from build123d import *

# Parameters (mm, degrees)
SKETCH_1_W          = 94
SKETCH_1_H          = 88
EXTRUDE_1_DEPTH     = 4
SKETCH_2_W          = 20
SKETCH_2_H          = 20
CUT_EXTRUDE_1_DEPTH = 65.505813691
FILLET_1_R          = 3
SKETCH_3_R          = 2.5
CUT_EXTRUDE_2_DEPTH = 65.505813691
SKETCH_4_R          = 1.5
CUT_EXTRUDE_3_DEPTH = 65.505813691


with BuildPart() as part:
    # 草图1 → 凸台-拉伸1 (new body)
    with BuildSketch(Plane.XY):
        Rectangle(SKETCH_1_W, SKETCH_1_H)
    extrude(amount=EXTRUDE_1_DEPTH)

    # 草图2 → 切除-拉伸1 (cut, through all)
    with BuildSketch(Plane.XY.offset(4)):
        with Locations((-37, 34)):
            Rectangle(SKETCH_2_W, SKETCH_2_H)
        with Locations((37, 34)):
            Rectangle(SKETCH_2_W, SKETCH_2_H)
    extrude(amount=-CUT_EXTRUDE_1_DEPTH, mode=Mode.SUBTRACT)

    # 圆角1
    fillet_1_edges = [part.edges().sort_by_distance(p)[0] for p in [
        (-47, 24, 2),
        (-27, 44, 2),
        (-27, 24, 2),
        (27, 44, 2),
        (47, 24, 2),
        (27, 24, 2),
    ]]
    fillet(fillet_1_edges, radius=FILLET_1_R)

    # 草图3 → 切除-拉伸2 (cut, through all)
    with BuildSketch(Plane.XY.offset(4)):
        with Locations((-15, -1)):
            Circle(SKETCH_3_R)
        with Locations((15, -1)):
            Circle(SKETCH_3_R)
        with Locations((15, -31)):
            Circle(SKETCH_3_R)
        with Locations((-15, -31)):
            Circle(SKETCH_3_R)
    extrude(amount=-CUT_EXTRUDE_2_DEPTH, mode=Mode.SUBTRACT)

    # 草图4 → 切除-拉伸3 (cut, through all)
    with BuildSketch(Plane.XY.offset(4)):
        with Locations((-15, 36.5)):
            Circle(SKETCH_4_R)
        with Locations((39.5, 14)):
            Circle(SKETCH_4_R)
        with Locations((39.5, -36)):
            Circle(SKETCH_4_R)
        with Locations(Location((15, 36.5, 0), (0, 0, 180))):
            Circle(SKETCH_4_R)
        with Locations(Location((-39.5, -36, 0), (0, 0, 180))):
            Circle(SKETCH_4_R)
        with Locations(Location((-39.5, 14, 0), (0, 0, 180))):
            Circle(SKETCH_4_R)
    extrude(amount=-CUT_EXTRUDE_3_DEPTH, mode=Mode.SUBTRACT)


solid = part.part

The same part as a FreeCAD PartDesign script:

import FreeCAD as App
import Part
import Sketcher
from FreeCAD import Vector


def edges_at(feature, points):
    """Names of the edges that pass closest to the given points."""
    edges = feature.Shape.Edges
    near = lambda p: min(range(len(edges)), key=lambda i: edges[i].distToShape(Part.Vertex(*p))[0])
    return sorted({f"Edge{near(p) + 1}" for p in points})


def add_polygon(sketch, points):
    """Adds a closed chain of lines whose ends are joined by coincident constraints."""
    first, n = sketch.GeometryCount, len(points)
    for a, b in zip(points, points[1:] + points[:1]):
        sketch.addGeometry(Part.LineSegment(App.Vector(*a, 0), App.Vector(*b, 0)), False)
    for i in range(n):
        sketch.addConstraint(Sketcher.Constraint("Coincident", first + i, 2, first + (i + 1) % n, 1))

doc = App.newDocument("Part")
body = doc.addObject("PartDesign::Body", "Body")

# Sketch on XY plane
sketch1 = body.newObject("Sketcher::SketchObject", "Sketch")
sketch1.AttachmentSupport = (doc.getObject("XY_Plane"), [""])
sketch1.MapMode = "FlatFace"
add_polygon(sketch1, [(-47, 44), (-47, -44), (47, -44), (47, 44)])  # lines 0-3
sketch1.addConstraint([
    Sketcher.Constraint("Vertical", 0),
    Sketcher.Constraint("Horizontal", 1),
    Sketcher.Constraint("Vertical", 2),
    Sketcher.Constraint("Horizontal", 3),
    Sketcher.Constraint("Symmetric", 0, 2, 2, 2, -1, 1),
    Sketcher.Constraint("DistanceX", 1, 1, 1, 2, 94.0),
    Sketcher.Constraint("DistanceY", 0, 2, 0, 1, 88.0),
])
pad1 = body.newObject("PartDesign::Pad", "Pad")
pad1.Profile = sketch1
pad1.Length = 4

# Sketch on XY plane
sketch2 = body.newObject("Sketcher::SketchObject", "Sketch001")
sketch2.AttachmentSupport = (doc.getObject("XY_Plane"), [""])
sketch2.MapMode = "FlatFace"
sketch2.AttachmentOffset = App.Placement(Vector(0, 0, 4), App.Rotation())
add_polygon(sketch2, [(-47, 44), (-47, 24), (-27, 24), (-27, 44)])  # lines 0-3
add_polygon(sketch2, [(27, 44), (27, 24), (47, 24), (47, 44)])  # lines 4-7
sketch2.addConstraint([
    Sketcher.Constraint("Vertical", 0),
    Sketcher.Constraint("Horizontal", 1),
    Sketcher.Constraint("Vertical", 2),
    Sketcher.Constraint("Horizontal", 3),
    Sketcher.Constraint("Vertical", 4),
    Sketcher.Constraint("Horizontal", 5),
    Sketcher.Constraint("Vertical", 6),
    Sketcher.Constraint("Horizontal", 7),
    Sketcher.Constraint("Symmetric", 1, 2, 4, 2, -2),
    Sketcher.Constraint("Symmetric", 3, 2, 6, 2, -2),
    Sketcher.Constraint("Equal", 7, 0),
    Sketcher.Constraint("DistanceX", 1, 1, 1, 2, 20.0),
    Sketcher.Constraint("DistanceX", 0, 2, -1, 1, 47.0),
    Sketcher.Constraint("DistanceY", -1, 1, 0, 2, 24.0),
])
pocket1 = body.newObject("PartDesign::Pocket", "Pocket")
pocket1.Profile = sketch2
pocket1.Type = "ThroughAll"
doc.recompute()

fillet = body.newObject("PartDesign::Fillet", "Fillet")
fillet.Base = (pocket1, edges_at(pocket1, [
    (-47, 24, 2),
    (-27, 44, 2),
    (-27, 24, 2),
    (27, 44, 2),
    (47, 24, 2),
    (27, 24, 2),
]))
fillet.Radius = 3

# Sketch on XY plane
sketch3 = body.newObject("Sketcher::SketchObject", "Sketch002")
sketch3.AttachmentSupport = (doc.getObject("XY_Plane"), [""])
sketch3.MapMode = "FlatFace"
sketch3.AttachmentOffset = App.Placement(Vector(0, 0, 4), App.Rotation())
sketch3.addGeometry([
    Part.Circle(Vector(-15, -1, 0), Vector(0, 0, 1), 2.5),
    Part.Circle(Vector(15, -1, 0), Vector(0, 0, 1), 2.5),
    Part.Circle(Vector(15, -31, 0), Vector(0, 0, 1), 2.5),
    Part.Circle(Vector(-15, -31, 0), Vector(0, 0, 1), 2.5),
], False)
sketch3.addConstraint([
    Sketcher.Constraint("Equal", 0, 1),
    Sketcher.Constraint("Equal", 1, 2),
    Sketcher.Constraint("Equal", 2, 3),
    Sketcher.Constraint("Symmetric", 0, 3, 1, 3, -2),
    Sketcher.Constraint("Symmetric", 2, 3, 3, 3, -2),
    Sketcher.Constraint("Vertical", 1, 3, 2, 3),
    Sketcher.Constraint("Diameter", 0, 5.0),
    Sketcher.Constraint("DistanceX", 0, 3, -1, 1, 15.0),
    Sketcher.Constraint("DistanceY", 0, 3, -1, 1, 1.0),
    Sketcher.Constraint("DistanceY", 2, 3, -1, 1, 31.0),
])
pocket2 = body.newObject("PartDesign::Pocket", "Pocket001")
pocket2.Profile = sketch3
pocket2.Type = "ThroughAll"

# Sketch on XY plane
sketch4 = body.newObject("Sketcher::SketchObject", "Sketch003")
sketch4.AttachmentSupport = (doc.getObject("XY_Plane"), [""])
sketch4.MapMode = "FlatFace"
sketch4.AttachmentOffset = App.Placement(Vector(0, 0, 4), App.Rotation())
sketch4.addGeometry([
    Part.Circle(Vector(-15, 36.5, 0), Vector(0, 0, 1), 1.5),  # 0
    Part.Circle(Vector(39.5, 14, 0), Vector(0, 0, 1), 1.5),  # 1
    Part.Circle(Vector(39.5, -36, 0), Vector(0, 0, 1), 1.5),  # 2
    Part.Circle(Vector(15, 36.5, 0), Vector(0, 0, 1), 1.5),  # 3
    Part.Circle(Vector(-39.5, -36, 0), Vector(0, 0, 1), 1.5),  # 4
    Part.Circle(Vector(-39.5, 14, 0), Vector(0, 0, 1), 1.5),  # 5
], False)
sketch4.addConstraint([
    Sketcher.Constraint("Equal", 0, 1),
    Sketcher.Constraint("Equal", 1, 2),
    Sketcher.Constraint("Equal", 2, 3),
    Sketcher.Constraint("Equal", 3, 4),
    Sketcher.Constraint("Equal", 4, 5),
    Sketcher.Constraint("Symmetric", 0, 3, 3, 3, -2),
    Sketcher.Constraint("Symmetric", 2, 3, 4, 3, -2),
    Sketcher.Constraint("Symmetric", 1, 3, 5, 3, -2),
    Sketcher.Constraint("Vertical", 1, 3, 2, 3),
    Sketcher.Constraint("Diameter", 0, 3.0),
    Sketcher.Constraint("DistanceX", 0, 3, -1, 1, 15.0),
    Sketcher.Constraint("DistanceY", -1, 1, 1, 3, 14.0),
    Sketcher.Constraint("DistanceY", 2, 3, -1, 1, 36.0),
    Sketcher.Constraint("DistanceX", 4, 3, 2, 3, 79.0),
    Sketcher.Constraint("DistanceY", -1, 1, 0, 3, 36.5),
])
pocket3 = body.newObject("PartDesign::Pocket", "Pocket002")
pocket3.Profile = sketch4
pocket3.Type = "ThroughAll"

doc.recompute()
